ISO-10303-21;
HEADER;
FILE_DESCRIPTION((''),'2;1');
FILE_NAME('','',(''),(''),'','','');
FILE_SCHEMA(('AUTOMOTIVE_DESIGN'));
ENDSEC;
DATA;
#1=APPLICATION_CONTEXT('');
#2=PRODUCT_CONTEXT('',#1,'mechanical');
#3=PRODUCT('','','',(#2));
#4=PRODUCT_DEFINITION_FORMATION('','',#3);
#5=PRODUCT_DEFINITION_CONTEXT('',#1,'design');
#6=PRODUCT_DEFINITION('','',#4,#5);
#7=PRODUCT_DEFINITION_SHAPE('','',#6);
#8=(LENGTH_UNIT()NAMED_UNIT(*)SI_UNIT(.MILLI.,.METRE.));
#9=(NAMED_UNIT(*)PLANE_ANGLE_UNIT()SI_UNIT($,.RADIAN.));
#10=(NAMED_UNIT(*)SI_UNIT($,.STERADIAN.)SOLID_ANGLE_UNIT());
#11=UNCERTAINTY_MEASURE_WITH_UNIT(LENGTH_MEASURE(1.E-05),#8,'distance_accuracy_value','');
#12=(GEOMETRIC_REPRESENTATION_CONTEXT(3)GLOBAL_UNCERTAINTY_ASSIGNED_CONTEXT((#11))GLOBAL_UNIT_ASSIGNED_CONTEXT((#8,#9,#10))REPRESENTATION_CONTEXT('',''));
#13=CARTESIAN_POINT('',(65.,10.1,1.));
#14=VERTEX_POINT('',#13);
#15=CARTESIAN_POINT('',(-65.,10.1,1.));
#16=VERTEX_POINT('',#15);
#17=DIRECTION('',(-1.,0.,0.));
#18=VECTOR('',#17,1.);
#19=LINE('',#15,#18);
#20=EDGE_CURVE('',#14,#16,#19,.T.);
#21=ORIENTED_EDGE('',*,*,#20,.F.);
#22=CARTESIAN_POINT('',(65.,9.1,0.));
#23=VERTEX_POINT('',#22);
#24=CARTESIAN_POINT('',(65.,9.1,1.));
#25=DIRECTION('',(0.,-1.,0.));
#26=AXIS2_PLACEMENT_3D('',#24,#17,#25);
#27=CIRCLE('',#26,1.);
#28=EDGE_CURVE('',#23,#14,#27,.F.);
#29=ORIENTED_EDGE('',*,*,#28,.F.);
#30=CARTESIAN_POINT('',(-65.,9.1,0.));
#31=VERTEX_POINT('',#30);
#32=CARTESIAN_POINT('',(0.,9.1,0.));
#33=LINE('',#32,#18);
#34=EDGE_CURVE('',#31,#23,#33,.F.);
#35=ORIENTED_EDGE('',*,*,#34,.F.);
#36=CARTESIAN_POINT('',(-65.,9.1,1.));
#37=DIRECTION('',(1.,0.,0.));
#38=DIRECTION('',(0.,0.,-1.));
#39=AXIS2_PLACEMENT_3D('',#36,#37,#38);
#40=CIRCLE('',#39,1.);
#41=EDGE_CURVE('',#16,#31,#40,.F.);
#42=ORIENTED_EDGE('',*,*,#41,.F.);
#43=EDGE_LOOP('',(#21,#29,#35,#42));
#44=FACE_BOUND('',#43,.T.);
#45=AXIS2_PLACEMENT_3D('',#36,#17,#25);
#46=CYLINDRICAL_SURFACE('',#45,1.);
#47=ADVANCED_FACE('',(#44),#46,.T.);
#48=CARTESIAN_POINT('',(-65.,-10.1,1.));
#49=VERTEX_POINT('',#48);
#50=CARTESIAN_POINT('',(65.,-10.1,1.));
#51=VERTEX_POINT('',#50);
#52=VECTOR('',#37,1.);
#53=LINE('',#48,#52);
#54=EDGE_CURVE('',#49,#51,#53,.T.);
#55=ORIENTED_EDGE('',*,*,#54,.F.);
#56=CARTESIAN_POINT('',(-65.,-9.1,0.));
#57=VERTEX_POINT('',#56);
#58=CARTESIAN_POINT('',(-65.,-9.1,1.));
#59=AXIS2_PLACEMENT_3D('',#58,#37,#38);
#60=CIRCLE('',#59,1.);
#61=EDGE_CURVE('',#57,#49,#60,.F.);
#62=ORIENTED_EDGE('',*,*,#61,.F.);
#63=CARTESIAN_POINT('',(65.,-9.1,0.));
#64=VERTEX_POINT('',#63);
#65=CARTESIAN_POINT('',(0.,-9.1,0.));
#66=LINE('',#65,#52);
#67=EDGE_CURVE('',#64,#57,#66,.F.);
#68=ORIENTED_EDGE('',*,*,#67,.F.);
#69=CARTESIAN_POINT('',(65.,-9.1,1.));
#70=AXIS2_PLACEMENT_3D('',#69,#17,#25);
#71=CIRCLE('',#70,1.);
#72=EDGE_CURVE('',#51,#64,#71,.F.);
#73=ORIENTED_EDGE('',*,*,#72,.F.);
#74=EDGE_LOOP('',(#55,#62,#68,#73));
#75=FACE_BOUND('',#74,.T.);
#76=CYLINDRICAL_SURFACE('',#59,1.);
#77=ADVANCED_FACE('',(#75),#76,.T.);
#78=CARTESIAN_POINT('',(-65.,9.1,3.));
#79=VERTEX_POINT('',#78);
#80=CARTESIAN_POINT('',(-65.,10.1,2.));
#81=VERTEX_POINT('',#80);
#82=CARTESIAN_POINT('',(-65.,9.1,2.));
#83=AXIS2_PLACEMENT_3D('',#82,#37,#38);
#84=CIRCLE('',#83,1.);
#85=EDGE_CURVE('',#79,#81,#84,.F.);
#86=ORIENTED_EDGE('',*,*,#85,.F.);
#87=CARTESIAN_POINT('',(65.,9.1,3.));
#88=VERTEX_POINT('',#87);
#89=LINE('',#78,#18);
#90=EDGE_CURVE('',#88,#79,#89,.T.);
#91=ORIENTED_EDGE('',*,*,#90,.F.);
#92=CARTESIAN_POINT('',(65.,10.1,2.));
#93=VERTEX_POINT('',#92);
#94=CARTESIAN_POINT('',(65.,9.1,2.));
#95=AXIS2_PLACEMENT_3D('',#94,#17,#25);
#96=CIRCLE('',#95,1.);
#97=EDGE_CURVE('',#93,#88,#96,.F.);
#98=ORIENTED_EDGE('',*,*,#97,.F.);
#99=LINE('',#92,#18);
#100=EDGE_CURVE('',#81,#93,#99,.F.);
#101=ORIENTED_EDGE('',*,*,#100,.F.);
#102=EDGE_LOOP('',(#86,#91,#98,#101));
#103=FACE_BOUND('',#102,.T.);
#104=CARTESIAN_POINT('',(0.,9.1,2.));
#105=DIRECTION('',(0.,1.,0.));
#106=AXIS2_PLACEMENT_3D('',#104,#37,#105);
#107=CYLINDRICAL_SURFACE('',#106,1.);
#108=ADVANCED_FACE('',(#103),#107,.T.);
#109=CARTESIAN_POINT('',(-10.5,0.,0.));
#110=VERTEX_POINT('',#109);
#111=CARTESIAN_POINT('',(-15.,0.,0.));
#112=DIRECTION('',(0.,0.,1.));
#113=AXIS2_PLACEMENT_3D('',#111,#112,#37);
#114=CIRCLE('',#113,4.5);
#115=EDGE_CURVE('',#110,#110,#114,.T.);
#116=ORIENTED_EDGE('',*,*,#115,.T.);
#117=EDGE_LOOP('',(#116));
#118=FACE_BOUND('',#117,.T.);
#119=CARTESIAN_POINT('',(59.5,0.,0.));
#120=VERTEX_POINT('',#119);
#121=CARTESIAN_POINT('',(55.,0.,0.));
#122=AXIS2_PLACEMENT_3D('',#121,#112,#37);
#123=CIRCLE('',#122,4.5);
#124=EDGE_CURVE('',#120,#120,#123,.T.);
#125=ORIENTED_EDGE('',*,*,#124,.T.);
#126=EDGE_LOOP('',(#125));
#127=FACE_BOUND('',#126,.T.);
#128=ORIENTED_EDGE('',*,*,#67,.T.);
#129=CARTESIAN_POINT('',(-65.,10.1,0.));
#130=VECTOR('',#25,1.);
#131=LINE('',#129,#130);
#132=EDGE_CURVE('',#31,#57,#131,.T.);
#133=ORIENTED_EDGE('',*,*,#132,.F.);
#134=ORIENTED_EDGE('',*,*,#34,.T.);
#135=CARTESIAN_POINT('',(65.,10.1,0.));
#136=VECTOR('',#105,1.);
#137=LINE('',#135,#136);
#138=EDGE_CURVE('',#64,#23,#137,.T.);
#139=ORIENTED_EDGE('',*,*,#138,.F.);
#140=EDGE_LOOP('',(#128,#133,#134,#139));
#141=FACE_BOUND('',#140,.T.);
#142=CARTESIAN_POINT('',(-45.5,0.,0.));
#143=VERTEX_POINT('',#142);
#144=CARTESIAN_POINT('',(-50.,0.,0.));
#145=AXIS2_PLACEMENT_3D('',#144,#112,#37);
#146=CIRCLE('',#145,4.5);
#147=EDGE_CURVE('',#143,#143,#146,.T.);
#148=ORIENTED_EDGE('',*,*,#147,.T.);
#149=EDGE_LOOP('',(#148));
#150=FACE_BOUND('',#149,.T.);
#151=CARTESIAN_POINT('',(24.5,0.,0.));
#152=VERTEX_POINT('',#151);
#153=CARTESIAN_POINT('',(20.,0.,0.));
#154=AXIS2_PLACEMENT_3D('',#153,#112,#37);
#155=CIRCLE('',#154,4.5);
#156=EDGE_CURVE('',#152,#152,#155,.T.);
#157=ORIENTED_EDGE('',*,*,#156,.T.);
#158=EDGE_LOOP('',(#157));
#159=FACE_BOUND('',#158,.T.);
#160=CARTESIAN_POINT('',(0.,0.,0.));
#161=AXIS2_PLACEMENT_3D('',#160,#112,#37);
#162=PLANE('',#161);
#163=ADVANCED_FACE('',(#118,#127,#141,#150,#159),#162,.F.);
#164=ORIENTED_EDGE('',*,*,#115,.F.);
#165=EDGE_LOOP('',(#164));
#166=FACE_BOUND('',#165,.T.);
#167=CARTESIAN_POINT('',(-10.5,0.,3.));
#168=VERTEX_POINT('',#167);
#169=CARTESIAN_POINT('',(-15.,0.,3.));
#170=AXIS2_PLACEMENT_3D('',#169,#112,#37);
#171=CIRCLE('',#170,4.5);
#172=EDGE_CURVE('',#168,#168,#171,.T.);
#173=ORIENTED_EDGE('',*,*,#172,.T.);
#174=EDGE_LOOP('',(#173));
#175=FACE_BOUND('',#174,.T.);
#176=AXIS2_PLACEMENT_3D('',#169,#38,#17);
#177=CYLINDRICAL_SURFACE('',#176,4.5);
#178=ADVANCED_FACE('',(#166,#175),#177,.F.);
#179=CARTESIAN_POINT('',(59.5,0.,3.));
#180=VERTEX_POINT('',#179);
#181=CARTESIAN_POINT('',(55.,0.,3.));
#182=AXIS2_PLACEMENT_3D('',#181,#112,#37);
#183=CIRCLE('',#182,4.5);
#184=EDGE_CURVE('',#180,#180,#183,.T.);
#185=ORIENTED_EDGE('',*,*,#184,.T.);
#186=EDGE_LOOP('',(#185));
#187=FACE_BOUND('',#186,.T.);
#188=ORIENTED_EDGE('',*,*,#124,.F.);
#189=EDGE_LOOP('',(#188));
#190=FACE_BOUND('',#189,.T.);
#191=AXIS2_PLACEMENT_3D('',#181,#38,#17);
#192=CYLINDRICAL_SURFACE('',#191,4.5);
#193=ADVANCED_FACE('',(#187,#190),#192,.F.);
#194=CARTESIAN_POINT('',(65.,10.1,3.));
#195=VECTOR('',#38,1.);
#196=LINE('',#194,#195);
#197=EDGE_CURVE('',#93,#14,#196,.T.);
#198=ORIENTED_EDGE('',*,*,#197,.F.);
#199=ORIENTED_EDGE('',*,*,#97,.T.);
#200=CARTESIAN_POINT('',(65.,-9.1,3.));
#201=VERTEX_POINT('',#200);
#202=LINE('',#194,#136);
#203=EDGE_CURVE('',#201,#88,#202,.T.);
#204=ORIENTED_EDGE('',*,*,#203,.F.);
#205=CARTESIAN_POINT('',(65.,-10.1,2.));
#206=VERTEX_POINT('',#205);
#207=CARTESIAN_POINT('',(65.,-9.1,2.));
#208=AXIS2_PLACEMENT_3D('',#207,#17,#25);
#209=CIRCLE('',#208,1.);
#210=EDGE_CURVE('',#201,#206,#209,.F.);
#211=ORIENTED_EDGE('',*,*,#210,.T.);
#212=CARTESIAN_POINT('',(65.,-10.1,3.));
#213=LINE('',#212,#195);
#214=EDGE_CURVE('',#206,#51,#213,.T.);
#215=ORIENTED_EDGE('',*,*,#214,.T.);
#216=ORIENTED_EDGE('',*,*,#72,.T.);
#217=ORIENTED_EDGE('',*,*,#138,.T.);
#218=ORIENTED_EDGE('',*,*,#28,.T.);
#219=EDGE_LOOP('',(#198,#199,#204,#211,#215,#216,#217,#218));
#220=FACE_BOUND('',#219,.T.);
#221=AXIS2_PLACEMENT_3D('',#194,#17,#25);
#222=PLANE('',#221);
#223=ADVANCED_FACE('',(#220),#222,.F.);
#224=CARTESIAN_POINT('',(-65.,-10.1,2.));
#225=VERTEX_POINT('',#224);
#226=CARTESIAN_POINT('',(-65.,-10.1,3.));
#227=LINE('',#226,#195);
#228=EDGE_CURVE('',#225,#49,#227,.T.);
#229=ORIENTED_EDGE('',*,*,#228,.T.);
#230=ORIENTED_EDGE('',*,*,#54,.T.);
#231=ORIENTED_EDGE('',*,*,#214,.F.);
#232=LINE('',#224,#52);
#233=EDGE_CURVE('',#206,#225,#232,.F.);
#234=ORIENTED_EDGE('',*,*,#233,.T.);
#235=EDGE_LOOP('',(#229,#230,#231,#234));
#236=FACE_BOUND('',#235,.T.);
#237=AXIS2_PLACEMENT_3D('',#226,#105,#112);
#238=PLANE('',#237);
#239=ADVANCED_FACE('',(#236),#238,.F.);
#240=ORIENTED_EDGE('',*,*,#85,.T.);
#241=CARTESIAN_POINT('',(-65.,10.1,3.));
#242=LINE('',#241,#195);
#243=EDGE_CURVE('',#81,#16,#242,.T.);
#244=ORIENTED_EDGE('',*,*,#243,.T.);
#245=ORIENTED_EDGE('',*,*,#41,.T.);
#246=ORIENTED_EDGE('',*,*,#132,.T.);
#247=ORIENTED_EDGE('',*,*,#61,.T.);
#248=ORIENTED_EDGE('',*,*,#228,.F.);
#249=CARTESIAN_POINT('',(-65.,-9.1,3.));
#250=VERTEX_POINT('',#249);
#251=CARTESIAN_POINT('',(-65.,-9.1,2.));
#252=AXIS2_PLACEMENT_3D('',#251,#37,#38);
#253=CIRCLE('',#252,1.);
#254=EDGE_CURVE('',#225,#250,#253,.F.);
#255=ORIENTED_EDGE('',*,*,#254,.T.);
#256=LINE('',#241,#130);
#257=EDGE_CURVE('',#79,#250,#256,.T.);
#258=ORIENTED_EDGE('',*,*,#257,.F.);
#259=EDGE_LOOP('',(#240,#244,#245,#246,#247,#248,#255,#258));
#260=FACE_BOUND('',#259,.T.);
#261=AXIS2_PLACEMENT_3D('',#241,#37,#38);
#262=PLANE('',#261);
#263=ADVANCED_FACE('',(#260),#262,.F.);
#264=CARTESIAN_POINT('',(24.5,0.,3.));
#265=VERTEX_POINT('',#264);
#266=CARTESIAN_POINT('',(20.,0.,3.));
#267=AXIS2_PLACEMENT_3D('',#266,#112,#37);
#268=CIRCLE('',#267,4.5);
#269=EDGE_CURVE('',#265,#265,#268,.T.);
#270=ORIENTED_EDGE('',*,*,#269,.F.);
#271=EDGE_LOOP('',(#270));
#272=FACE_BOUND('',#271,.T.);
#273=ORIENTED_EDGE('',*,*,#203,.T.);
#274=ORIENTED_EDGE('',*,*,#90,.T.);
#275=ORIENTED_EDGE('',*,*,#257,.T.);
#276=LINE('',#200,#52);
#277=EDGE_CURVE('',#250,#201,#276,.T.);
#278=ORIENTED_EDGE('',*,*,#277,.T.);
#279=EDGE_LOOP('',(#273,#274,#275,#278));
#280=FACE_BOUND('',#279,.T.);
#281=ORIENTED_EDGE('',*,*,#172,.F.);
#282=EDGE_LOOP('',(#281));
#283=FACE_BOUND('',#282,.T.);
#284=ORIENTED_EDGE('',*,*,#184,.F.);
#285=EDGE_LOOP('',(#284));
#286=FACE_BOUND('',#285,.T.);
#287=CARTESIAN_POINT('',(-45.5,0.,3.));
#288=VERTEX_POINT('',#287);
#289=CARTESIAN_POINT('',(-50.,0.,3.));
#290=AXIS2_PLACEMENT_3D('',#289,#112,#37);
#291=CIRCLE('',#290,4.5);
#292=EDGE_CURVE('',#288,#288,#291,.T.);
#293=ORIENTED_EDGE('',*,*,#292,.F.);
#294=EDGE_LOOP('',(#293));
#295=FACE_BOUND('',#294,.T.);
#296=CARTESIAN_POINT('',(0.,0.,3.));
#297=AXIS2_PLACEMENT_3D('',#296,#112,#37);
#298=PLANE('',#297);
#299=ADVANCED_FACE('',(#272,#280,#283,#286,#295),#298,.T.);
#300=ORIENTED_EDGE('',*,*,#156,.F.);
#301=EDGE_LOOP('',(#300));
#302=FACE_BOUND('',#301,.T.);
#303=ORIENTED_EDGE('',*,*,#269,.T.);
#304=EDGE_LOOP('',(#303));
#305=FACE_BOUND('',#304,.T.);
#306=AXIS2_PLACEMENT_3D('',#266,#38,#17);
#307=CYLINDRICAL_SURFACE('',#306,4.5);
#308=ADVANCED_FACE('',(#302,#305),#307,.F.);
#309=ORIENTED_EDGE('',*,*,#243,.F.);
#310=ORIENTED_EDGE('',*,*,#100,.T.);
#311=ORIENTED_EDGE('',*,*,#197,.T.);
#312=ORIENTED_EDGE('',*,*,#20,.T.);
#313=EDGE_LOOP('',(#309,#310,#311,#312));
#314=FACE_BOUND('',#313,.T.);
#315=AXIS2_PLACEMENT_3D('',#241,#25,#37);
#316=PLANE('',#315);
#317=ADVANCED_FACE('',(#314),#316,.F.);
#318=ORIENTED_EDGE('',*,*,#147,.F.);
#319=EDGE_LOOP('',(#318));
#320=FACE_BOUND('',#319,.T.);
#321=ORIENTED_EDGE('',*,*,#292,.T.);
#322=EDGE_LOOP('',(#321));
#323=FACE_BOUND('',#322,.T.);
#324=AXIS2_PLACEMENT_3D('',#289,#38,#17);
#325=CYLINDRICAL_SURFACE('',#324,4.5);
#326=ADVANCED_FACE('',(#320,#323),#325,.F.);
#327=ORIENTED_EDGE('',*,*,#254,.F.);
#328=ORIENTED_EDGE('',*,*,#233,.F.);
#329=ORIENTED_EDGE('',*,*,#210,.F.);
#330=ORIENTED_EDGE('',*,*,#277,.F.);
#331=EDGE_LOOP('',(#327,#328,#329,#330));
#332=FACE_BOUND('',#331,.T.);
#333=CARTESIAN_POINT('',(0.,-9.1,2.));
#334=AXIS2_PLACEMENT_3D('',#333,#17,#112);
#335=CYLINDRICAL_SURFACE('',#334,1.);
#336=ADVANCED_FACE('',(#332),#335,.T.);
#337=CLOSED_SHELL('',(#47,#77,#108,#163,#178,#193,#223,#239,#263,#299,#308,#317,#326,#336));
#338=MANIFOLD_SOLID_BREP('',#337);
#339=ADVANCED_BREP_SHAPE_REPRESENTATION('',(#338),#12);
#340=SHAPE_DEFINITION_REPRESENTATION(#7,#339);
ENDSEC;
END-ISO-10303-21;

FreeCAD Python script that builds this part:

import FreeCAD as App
import Part
import Sketcher
Q = App.Units.Quantity


def edges_at(feature, points):
    """Names of the edges that pass closest to the given points."""
    edges = feature.Shape.Edges
    near = lambda p: min(range(len(edges)), key=lambda i: edges[i].distToShape(Part.Vertex(*p))[0])
    return sorted({f"Edge{near(p) + 1}" for p in points})

doc = App.newDocument("Part")
body = doc.addObject("PartDesign::Body", "Body")

# Sketch on XY plane
sketch1 = doc.addObject("Sketcher::SketchObject", "Sketch")
body.addObject(sketch1)
sketch1.AttachmentSupport = (doc.XY_Plane, [""])
sketch1.MapMode = "FlatFace"
sketch1.addGeometry([
    Part.LineSegment(App.Vector(-65, 10.1, 0), App.Vector(-65, -10.1, 0)),  # 0
    Part.LineSegment(App.Vector(-65, -10.1, 0), App.Vector(65, -10.1, 0)),  # 1
    Part.LineSegment(App.Vector(65, -10.1, 0), App.Vector(65, 10.1, 0)),  # 2
    Part.LineSegment(App.Vector(65, 10.1, 0), App.Vector(-65, 10.1, 0)),  # 3
    Part.Circle(App.Vector(-50, 0, 0), App.Vector(0, 0, 1), 4.5),  # 4
    Part.Circle(App.Vector(-15, 0, 0), App.Vector(0, 0, 1), 4.5),  # 5
    Part.Circle(App.Vector(20, 0, 0), App.Vector(0, 0, 1), 4.5),  # 6
    Part.Circle(App.Vector(55, 0, 0), App.Vector(0, 0, 1), 4.5),  # 7
], False)
sketch1.addConstraint([
    Sketcher.Constraint("Coincident", 0, 2, 1, 1),
    Sketcher.Constraint("Coincident", 1, 2, 2, 1),
    Sketcher.Constraint("Coincident", 2, 2, 3, 1),
    Sketcher.Constraint("Coincident", 3, 2, 0, 1),
    Sketcher.Constraint("Vertical", 0),
    Sketcher.Constraint("Horizontal", 1),
    Sketcher.Constraint("Vertical", 2),
    Sketcher.Constraint("Horizontal", 3),
    Sketcher.Constraint("Equal", 4, 5),
    Sketcher.Constraint("Equal", 5, 6),
    Sketcher.Constraint("Equal", 6, 7),
    Sketcher.Constraint("Symmetric", 0, 2, 2, 2, -1, 1),
    Sketcher.Constraint("PointOnObject", 4, 3, -1),
    Sketcher.Constraint("PointOnObject", 5, 3, -1),
    Sketcher.Constraint("PointOnObject", 6, 3, -1),
    Sketcher.Constraint("PointOnObject", 7, 3, -1),
    Sketcher.Constraint("Diameter", 4, Q("9 mm")),
    Sketcher.Constraint("DistanceX", 1, 1, 1, 2, Q("130 mm")),
    Sketcher.Constraint("DistanceY", 0, 2, 0, 1, Q("20.2 mm")),
    Sketcher.Constraint("DistanceX", 4, 3, -1, 1, Q("50 mm")),
    Sketcher.Constraint("DistanceX", 5, 3, -1, 1, Q("15 mm")),
    Sketcher.Constraint("DistanceX", -1, 1, 6, 3, Q("20 mm")),
    Sketcher.Constraint("DistanceX", -1, 1, 7, 3, Q("55 mm")),
])
pad1 = doc.addObject("PartDesign::Pad", "Pad")
body.addObject(pad1)
pad1.Profile = sketch1
pad1.Length = 3
doc.recompute()

fillet = doc.addObject("PartDesign::Fillet", "Fillet")
body.addObject(fillet)
fillet.Base = (pad1, edges_at(pad1, [
    (0, -10.1, 3),
    (0, -10.1, 0),
    (0, 10.1, 0),
    (0, 10.1, 3),
]))
fillet.Radius = 1

doc.recompute()
